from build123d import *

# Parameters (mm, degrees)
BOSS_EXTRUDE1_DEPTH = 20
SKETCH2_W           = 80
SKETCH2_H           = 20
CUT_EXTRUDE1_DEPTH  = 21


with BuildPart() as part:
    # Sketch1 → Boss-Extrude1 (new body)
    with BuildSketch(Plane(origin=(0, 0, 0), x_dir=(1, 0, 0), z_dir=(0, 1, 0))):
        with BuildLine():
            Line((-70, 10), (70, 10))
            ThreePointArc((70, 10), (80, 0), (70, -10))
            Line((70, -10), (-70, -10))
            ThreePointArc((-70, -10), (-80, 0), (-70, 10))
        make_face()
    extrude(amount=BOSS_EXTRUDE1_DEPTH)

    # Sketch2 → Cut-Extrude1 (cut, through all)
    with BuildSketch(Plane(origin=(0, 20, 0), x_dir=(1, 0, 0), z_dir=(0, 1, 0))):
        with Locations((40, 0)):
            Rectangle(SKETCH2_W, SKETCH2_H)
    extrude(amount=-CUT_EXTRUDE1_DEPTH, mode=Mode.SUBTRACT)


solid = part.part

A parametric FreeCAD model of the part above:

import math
import FreeCAD as App
import Part
import Sketcher
Q = App.Units.Quantity

doc = App.newDocument("Part")
body = doc.addObject("PartDesign::Body", "Body")

sketch1 = body.newObject("Sketcher::SketchObject", "Sketch")
sketch1.AttachmentSupport = (doc.getObject("XZ_Plane"), [""])
sketch1.MapMode = "FlatFace"
sketch1.addGeometry([
    Part.LineSegment(App.Vector(70, -10, 0), App.Vector(-70, -10, 0)),
    Part.ArcOfCircle(Part.Circle(App.Vector(-70, 0, 0), App.Vector(0, 0, 1), 10), math.radians(90), math.radians(270)),
    Part.LineSegment(App.Vector(-70, 10, 0), App.Vector(70, 10, 0)),
    Part.ArcOfCircle(Part.Circle(App.Vector(70, 0, 0), App.Vector(0, 0, 1), 10), math.radians(-90), math.radians(90)),
], False)
sketch1.addConstraint([
    Sketcher.Constraint("Tangent", 0, 2, 1, 2),
    Sketcher.Constraint("Tangent", 1, 1, 2, 1),
    Sketcher.Constraint("Tangent", 2, 2, 3, 2),
    Sketcher.Constraint("Tangent", 3, 1, 0, 1),
    Sketcher.Constraint("Horizontal", 0),
    Sketcher.Constraint("Horizontal", 2),
    Sketcher.Constraint("Symmetric", 1, 3, 3, 3, -1, 1),
    Sketcher.Constraint("Radius", 1, Q("10 mm")),
    Sketcher.Constraint("DistanceX", 0, 2, 0, 1, Q("140 mm")),
])
pad1 = body.newObject("PartDesign::Pad", "Pad")
pad1.Profile = sketch1
pad1.Length = 20
pad1.Reversed = True

sketch2 = body.newObject("Sketcher::SketchObject", "Sketch001")
sketch2.AttachmentSupport = (doc.getObject("XZ_Plane"), [""])
sketch2.MapMode = "FlatFace"
sketch2.AttachmentOffset = App.Placement(App.Vector(0, 0, -20), App.Rotation())
sketch2.addGeometry([
    Part.LineSegment(App.Vector(0, -10, 0), App.Vector(0, 10, 0)),
    Part.LineSegment(App.Vector(0, 10, 0), App.Vector(80, 10, 0)),
    Part.LineSegment(App.Vector(80, 10, 0), App.Vector(80, -10, 0)),
    Part.LineSegment(App.Vector(80, -10, 0), App.Vector(0, -10, 0)),
], False)
sketch2.addConstraint([
    Sketcher.Constraint("Coincident", 0, 2, 1, 1),
    Sketcher.Constraint("Coincident", 1, 2, 2, 1),
    Sketcher.Constraint("Coincident", 2, 2, 3, 1),
    Sketcher.Constraint("Coincident", 3, 2, 0, 1),
    Sketcher.Constraint("Vertical", 0),
    Sketcher.Constraint("Horizontal", 1),
    Sketcher.Constraint("Vertical", 2),
    Sketcher.Constraint("Horizontal", 3),
    Sketcher.Constraint("Symmetric", 0, 2, 3, 2, -1, 1),
    Sketcher.Constraint("DistanceX", 1, 1, 1, 2, Q("80 mm")),
    Sketcher.Constraint("DistanceY", 0, 1, 0, 2, Q("20 mm")),
])
pocket1 = body.newObject("PartDesign::Pocket", "Pocket")
pocket1.Profile = sketch2
pocket1.Type = "ThroughAll"
pocket1.Reversed = True

doc.recompute()
